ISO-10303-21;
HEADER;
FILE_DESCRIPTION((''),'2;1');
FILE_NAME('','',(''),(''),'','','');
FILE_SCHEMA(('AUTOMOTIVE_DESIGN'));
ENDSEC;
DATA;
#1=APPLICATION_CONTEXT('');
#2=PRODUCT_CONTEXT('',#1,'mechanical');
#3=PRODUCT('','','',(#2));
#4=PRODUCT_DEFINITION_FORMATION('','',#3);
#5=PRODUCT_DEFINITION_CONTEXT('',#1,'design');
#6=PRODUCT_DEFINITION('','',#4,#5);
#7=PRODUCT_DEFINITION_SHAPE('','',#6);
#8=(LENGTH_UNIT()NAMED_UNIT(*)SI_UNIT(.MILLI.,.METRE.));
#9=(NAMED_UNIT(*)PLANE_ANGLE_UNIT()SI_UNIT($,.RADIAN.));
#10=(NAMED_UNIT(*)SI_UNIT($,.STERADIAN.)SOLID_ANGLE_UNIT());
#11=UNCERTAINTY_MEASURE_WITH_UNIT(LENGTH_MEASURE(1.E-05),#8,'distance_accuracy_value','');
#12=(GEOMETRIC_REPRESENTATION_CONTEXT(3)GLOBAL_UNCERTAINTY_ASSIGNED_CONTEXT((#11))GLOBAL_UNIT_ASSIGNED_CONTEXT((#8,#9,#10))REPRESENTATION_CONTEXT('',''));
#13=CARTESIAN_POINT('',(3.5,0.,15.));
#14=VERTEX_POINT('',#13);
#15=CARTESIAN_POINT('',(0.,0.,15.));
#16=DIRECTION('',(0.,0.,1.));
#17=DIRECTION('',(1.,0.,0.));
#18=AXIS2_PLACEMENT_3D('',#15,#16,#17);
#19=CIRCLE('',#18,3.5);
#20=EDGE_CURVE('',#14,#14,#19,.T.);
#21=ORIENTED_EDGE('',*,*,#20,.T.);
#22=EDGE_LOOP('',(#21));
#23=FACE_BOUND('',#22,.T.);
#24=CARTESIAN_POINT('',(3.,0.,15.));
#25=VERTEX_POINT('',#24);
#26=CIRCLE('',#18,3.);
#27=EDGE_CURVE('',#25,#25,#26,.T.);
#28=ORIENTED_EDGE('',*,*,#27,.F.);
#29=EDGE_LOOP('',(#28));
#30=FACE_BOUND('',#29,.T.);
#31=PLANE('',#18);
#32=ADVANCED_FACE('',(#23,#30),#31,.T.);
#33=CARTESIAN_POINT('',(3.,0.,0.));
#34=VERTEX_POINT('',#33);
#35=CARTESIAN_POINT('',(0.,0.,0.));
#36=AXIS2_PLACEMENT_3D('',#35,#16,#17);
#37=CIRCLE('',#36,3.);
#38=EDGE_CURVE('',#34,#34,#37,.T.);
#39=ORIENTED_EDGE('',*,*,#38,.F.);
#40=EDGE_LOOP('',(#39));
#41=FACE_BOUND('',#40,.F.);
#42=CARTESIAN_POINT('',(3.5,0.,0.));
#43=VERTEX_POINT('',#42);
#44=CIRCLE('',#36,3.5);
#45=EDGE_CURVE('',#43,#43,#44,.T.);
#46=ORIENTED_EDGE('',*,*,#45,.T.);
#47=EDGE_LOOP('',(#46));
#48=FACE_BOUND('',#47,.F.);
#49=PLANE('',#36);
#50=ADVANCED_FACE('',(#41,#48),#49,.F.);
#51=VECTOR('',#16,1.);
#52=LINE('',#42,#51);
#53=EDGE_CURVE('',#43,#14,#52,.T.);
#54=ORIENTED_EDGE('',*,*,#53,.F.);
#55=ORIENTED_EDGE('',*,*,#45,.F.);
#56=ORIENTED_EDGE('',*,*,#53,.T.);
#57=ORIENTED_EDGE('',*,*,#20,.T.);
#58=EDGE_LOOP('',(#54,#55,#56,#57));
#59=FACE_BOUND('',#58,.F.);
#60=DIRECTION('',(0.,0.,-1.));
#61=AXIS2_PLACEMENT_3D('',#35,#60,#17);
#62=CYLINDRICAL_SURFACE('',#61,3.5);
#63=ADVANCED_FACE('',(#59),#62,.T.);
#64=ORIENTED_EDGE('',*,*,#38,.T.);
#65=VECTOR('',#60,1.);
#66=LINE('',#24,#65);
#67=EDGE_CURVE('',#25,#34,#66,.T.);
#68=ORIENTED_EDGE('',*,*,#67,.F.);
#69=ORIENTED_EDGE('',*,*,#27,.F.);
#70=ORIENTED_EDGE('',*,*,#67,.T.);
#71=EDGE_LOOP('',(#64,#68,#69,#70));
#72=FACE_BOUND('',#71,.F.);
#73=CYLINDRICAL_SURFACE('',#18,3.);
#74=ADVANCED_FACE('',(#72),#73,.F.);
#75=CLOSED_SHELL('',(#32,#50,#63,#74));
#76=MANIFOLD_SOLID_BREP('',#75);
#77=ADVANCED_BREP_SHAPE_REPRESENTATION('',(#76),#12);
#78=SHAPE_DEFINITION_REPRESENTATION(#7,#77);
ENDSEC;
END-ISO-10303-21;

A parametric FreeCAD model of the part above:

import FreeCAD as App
import Part
import Sketcher

doc = App.newDocument("Part")
body = doc.addObject("PartDesign::Body", "Body")

sketch1 = body.newObject("Sketcher::SketchObject", "Sketch")
sketch1.AttachmentSupport = (doc.getObject("XY_Plane"), [""])
sketch1.MapMode = "FlatFace"
sketch1.addGeometry(Part.Circle(App.Vector(0, 0, 0), App.Vector(0, 0, 1), 3.5), False)
sketch1.addConstraint(Sketcher.Constraint("Coincident", 0, 3, -1, 1))
sketch1.addConstraint(Sketcher.Constraint("Diameter", 0, 7.0))
pad1 = body.newObject("PartDesign::Pad", "Pad")
pad1.Profile = sketch1
pad1.Length = 15

sketch2 = body.newObject("Sketcher::SketchObject", "Sketch001")
sketch2.AttachmentSupport = (doc.getObject("XY_Plane"), [""])
sketch2.MapMode = "FlatFace"
sketch2.AttachmentOffset = App.Placement(App.Vector(0, 0, 15), App.Rotation())
sketch2.addGeometry(Part.Circle(App.Vector(0, 0, 0), App.Vector(0, 0, 1), 3), False)
sketch2.addConstraint(Sketcher.Constraint("Coincident", 0, 3, -1, 1))
sketch2.addConstraint(Sketcher.Constraint("Diameter", 0, 6.0))
pocket1 = body.newObject("PartDesign::Pocket", "Pocket")
pocket1.Profile = sketch2
pocket1.Length = 15

doc.recompute()
